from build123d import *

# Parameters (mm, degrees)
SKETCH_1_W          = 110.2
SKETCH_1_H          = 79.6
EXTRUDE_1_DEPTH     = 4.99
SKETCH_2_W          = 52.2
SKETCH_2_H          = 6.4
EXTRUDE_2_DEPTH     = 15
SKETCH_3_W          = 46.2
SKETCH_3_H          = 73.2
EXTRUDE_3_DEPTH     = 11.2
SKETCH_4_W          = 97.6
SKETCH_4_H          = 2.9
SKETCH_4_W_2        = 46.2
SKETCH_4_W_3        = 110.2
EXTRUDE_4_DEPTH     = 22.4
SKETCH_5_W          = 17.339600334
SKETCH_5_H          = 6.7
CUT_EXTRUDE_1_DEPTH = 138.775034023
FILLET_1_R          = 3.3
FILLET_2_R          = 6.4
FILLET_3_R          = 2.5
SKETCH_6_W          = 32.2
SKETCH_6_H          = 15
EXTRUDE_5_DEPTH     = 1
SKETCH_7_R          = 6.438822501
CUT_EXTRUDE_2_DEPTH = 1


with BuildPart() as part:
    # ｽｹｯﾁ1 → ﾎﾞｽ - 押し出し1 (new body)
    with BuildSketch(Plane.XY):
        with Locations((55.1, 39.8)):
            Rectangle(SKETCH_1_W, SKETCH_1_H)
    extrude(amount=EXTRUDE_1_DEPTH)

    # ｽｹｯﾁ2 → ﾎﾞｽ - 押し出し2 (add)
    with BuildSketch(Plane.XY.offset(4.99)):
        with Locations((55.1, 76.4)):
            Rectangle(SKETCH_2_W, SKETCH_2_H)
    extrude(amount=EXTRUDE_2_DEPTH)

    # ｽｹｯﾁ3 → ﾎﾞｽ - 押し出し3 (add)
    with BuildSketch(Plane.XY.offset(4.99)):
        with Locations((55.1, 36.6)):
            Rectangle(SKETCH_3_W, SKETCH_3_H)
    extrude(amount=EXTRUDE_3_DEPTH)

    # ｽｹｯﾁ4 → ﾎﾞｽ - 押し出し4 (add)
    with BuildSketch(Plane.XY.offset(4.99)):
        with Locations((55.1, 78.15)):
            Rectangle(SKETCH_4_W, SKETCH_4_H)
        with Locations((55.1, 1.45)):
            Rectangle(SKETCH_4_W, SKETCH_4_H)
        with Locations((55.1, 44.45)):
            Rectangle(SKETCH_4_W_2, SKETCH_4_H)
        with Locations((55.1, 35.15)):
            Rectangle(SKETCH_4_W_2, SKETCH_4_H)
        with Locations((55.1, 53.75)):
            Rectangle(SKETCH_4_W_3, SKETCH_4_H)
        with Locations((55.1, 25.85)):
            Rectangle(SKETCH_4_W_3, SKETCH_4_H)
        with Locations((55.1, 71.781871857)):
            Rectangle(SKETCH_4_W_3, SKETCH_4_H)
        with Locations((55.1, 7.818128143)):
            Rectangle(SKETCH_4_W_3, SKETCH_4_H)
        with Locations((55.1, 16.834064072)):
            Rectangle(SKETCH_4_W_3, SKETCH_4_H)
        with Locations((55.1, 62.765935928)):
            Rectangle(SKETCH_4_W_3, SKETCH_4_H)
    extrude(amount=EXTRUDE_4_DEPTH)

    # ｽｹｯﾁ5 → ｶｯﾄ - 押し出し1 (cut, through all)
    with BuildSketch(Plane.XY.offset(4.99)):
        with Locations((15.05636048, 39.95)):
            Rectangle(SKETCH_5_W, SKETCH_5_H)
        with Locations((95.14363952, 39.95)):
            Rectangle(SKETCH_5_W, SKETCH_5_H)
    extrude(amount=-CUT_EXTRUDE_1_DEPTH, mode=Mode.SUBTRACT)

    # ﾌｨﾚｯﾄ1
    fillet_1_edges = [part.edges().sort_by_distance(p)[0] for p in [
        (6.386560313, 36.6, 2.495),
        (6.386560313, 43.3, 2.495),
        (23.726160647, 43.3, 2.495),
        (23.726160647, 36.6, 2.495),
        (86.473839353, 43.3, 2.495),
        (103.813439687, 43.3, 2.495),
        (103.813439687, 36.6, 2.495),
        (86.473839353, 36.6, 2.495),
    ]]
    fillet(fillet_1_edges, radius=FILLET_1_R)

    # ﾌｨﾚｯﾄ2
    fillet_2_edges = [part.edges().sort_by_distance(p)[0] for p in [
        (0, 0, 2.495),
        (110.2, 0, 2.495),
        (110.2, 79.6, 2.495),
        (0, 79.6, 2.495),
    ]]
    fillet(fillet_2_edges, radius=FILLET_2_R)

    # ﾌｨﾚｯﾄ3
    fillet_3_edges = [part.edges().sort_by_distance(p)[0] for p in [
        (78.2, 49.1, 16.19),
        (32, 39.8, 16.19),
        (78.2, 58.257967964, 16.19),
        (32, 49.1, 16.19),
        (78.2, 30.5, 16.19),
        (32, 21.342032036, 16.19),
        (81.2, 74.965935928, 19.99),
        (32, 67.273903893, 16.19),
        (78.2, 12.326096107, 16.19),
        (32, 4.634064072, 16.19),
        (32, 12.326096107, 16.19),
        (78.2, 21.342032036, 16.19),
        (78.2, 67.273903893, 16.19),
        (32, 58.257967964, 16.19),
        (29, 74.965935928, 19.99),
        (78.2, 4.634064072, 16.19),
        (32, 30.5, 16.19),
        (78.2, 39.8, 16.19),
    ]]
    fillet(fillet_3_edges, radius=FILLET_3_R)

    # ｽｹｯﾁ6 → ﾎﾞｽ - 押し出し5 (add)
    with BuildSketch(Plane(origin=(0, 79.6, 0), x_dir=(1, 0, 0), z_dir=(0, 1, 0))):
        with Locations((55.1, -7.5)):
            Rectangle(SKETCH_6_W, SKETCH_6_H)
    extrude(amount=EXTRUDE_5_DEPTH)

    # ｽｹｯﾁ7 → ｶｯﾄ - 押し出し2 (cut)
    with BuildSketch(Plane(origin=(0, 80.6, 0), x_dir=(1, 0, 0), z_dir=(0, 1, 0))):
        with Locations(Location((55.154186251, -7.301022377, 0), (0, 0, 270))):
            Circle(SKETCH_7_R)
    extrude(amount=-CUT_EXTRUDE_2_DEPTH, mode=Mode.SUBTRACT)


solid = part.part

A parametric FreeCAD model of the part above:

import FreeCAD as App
import Part
import Sketcher

V = App.Vector


def edges_at(feature, points):
    """Names of the edges that pass closest to the given points."""
    edges = feature.Shape.Edges
    near = lambda p: min(range(len(edges)), key=lambda i: edges[i].distToShape(Part.Vertex(*p))[0])
    return sorted({f"Edge{near(p) + 1}" for p in points})


def add_polygon(sketch, points):
    """Adds a closed chain of lines whose ends are joined by coincident constraints."""
    first, n = sketch.GeometryCount, len(points)
    for a, b in zip(points, points[1:] + points[:1]):
        sketch.addGeometry(Part.LineSegment(App.Vector(*a, 0), App.Vector(*b, 0)), False)
    for i in range(n):
        sketch.addConstraint(Sketcher.Constraint("Coincident", first + i, 2, first + (i + 1) % n, 1))

doc = App.newDocument("Part")
params = doc.addObject("Spreadsheet::Sheet", "Params")
for row, (alias, value) in enumerate([
    ("sketch1_width", "110.2 mm"),
    ("sketch1_height", "79.6 mm"),
    ("pad1_length", "4.99 mm"),
    ("sketch2_width", "52.2 mm"),
    ("sketch2_height", "6.4 mm"),
    ("pad2_length", "15 mm"),
    ("sketch3_width", "46.2 mm"),
    ("sketch3_height", "73.2 mm"),
    ("pad3_length", "11.2 mm"),
    ("sketch4_width", "97.6 mm"),
    ("sketch4_width2", "46.2 mm"),
    ("sketch4_width3", "110.2 mm"),
    ("sketch4_height", "2.9 mm"),
    ("pad4_length", "22.4 mm"),
    ("sketch5_height", "6.7 mm"),
    ("fillet_radius", "3.3 mm"),
    ("fillet2_radius", "6.4 mm"),
    ("fillet3_radius", "2.5 mm"),
    ("sketch6_height", "15 mm"),
    ("sketch6_width", "32.2 mm"),
    ("pad5_length", "1 mm"),
    ("pocket2_length", "1 mm"),
], start=1):
    params.set(f"A{row}", alias)
    params.set(f"B{row}", "=" + value)
    params.setAlias(f"B{row}", alias)

body = doc.addObject("PartDesign::Body", "Body")

sketch1 = body.newObject("Sketcher::SketchObject", "Sketch")
sketch1.AttachmentSupport = (doc.getObject("XY_Plane"), [""])
sketch1.MapMode = "FlatFace"
add_polygon(sketch1, [(0, 79.6), (0, 0), (110.2, 0), (110.2, 79.6)])
sketch1.addConstraint([
    Sketcher.Constraint("Vertical", 0),
    Sketcher.Constraint("Horizontal", 1),
    Sketcher.Constraint("Vertical", 2),
    Sketcher.Constraint("Horizontal", 3),
    Sketcher.Constraint("Coincident", 0, 2, -1, 1),
    Sketcher.Constraint("DistanceX", 1, 1, 1, 2, 110.2),
    Sketcher.Constraint("DistanceY", 0, 2, 0, 1, 79.6),
])
sketch1.setExpression("Constraints[9]", "Params.sketch1_width")
sketch1.setExpression("Constraints[10]", "Params.sketch1_height")
pad1 = body.newObject("PartDesign::Pad", "Pad")
pad1.Profile = sketch1
pad1.setExpression("Length", "Params.pad1_length")

sketch2 = body.newObject("Sketcher::SketchObject", "Sketch001")
sketch2.AttachmentSupport = (doc.getObject("XY_Plane"), [""])
sketch2.MapMode = "FlatFace"
sketch2.AttachmentOffset = App.Placement(V(0, 0, 4.99), App.Rotation())
add_polygon(sketch2, [(29, 79.6), (29, 73.2), (81.2, 73.2), (81.2, 79.6)])
sketch2.addConstraint([
    Sketcher.Constraint("Vertical", 0),
    Sketcher.Constraint("Horizontal", 1),
    Sketcher.Constraint("Vertical", 2),
    Sketcher.Constraint("Horizontal", 3),
    Sketcher.Constraint("DistanceX", 1, 1, 1, 2, 52.2),
    Sketcher.Constraint("DistanceY", 0, 2, 0, 1, 6.4),
    Sketcher.Constraint("DistanceX", -1, 1, 0, 2, 29.0),
    Sketcher.Constraint("DistanceY", -1, 1, 0, 2, 73.2),
])
sketch2.setExpression("Constraints[8]", "Params.sketch2_width")
sketch2.setExpression("Constraints[9]", "Params.sketch2_height")
pad2 = body.newObject("PartDesign::Pad", "Pad001")
pad2.Profile = sketch2
pad2.setExpression("Length", "Params.pad2_length")

sketch3 = body.newObject("Sketcher::SketchObject", "Sketch002")
sketch3.AttachmentSupport = (doc.getObject("XY_Plane"), [""])
sketch3.MapMode = "FlatFace"
sketch3.AttachmentOffset = App.Placement(V(0, 0, 4.99), App.Rotation())
add_polygon(sketch3, [(32, 73.2), (32, 0), (78.2, 0), (78.2, 73.2)])
sketch3.addConstraint([
    Sketcher.Constraint("Vertical", 0),
    Sketcher.Constraint("Horizontal", 1),
    Sketcher.Constraint("Vertical", 2),
    Sketcher.Constraint("Horizontal", 3),
    Sketcher.Constraint("PointOnObject", 0, 2, -1),
    Sketcher.Constraint("DistanceX", 1, 1, 1, 2, 46.2),
    Sketcher.Constraint("DistanceY", 0, 2, 0, 1, 73.2),
    Sketcher.Constraint("DistanceX", -1, 1, 0, 2, 32.0),
])
sketch3.setExpression("Constraints[9]", "Params.sketch3_width")
sketch3.setExpression("Constraints[10]", "Params.sketch3_height")
pad3 = body.newObject("PartDesign::Pad", "Pad002")
pad3.Profile = sketch3
pad3.setExpression("Length", "Params.pad3_length")

sketch4 = body.newObject("Sketcher::SketchObject", "Sketch003")
sketch4.AttachmentSupport = (doc.getObject("XY_Plane"), [""])
sketch4.MapMode = "FlatFace"
sketch4.AttachmentOffset = App.Placement(V(0, 0, 4.99), App.Rotation())
add_polygon(sketch4, [(6.3, 79.6), (6.3, 76.7), (103.9, 76.7), (103.9, 79.6)])
add_polygon(sketch4, [(6.3, 2.9), (6.3, 0), (103.9, 0), (103.9, 2.9)])
add_polygon(sketch4, [(32, 45.9), (32, 43), (78.2, 43), (78.2, 45.9)])
add_polygon(sketch4, [(32, 36.6), (32, 33.7), (78.2, 33.7), (78.2, 36.6)])
add_polygon(sketch4, [(0, 55.2), (0, 52.3), (110.2, 52.3), (110.2, 55.2)])
add_polygon(sketch4, [(0, 27.3), (0, 24.4), (110.2, 24.4), (110.2, 27.3)])
add_polygon(sketch4, [(0, 73.231872), (0, 70.331872), (110.2, 70.331872), (110.2, 73.231872)])
add_polygon(sketch4, [(0, 9.268128), (0, 6.368128), (110.2, 6.368128), (110.2, 9.268128)])
add_polygon(sketch4, [(0, 18.284064), (0, 15.384064), (110.2, 15.384064), (110.2, 18.284064)])
add_polygon(sketch4, [(0, 64.215936), (0, 61.315936), (110.2, 61.315936), (110.2, 64.215936)])
sketch4.addConstraint([
    Sketcher.Constraint("Vertical", 0),
    Sketcher.Constraint("Horizontal", 1),
    Sketcher.Constraint("Vertical", 2),
    Sketcher.Constraint("Horizontal", 3),
    Sketcher.Constraint("Vertical", 4),
    Sketcher.Constraint("Horizontal", 5),
    Sketcher.Constraint("Vertical", 6),
    Sketcher.Constraint("Horizontal", 7),
    Sketcher.Constraint("Vertical", 8),
    Sketcher.Constraint("Horizontal", 9),
    Sketcher.Constraint("Vertical", 10),
    Sketcher.Constraint("Horizontal", 11),
    Sketcher.Constraint("Vertical", 12),
    Sketcher.Constraint("Horizontal", 13),
    Sketcher.Constraint("Vertical", 14),
    Sketcher.Constraint("Horizontal", 15),
    Sketcher.Constraint("Vertical", 16),
    Sketcher.Constraint("Horizontal", 17),
    Sketcher.Constraint("Vertical", 18),
    Sketcher.Constraint("Horizontal", 19),
    Sketcher.Constraint("Vertical", 20),
    Sketcher.Constraint("Horizontal", 21),
    Sketcher.Constraint("Vertical", 22),
    Sketcher.Constraint("Horizontal", 23),
    Sketcher.Constraint("Vertical", 24),
    Sketcher.Constraint("Horizontal", 25),
    Sketcher.Constraint("Vertical", 26),
    Sketcher.Constraint("Horizontal", 27),
    Sketcher.Constraint("Vertical", 28),
    Sketcher.Constraint("Horizontal", 29),
    Sketcher.Constraint("Vertical", 30),
    Sketcher.Constraint("Horizontal", 31),
    Sketcher.Constraint("Vertical", 32),
    Sketcher.Constraint("Horizontal", 33),
    Sketcher.Constraint("Vertical", 34),
    Sketcher.Constraint("Horizontal", 35),
    Sketcher.Constraint("Vertical", 36),
    Sketcher.Constraint("Horizontal", 37),
    Sketcher.Constraint("Vertical", 38),
    Sketcher.Constraint("Horizontal", 39),
    Sketcher.Constraint("PointOnObject", 4, 2, -1),
    Sketcher.Constraint("PointOnObject", 16, 2, -2),
    Sketcher.Constraint("PointOnObject", 20, 2, -2),
    Sketcher.Constraint("PointOnObject", 24, 2, -2),
    Sketcher.Constraint("PointOnObject", 28, 2, -2),
    Sketcher.Constraint("PointOnObject", 32, 2, -2),
    Sketcher.Constraint("PointOnObject", 36, 2, -2),
    Sketcher.Constraint("Vertical", 3, 2, 4, 2),
    Sketcher.Constraint("Vertical", 2, 2, 5, 2),
    Sketcher.Constraint("Vertical", 11, 2, 12, 2),
    Sketcher.Constraint("Vertical", 10, 2, 13, 2),
    Sketcher.Constraint("Vertical", 18, 2, 21, 2),
    Sketcher.Constraint("Vertical", 22, 2, 25, 2),
    Sketcher.Constraint("Vertical", 26, 2, 29, 2),
    Sketcher.Constraint("Vertical", 30, 2, 33, 2),
    Sketcher.Constraint("Vertical", 34, 2, 37, 2),
    Sketcher.Constraint("Equal", 2, 4),
    Sketcher.Constraint("Equal", 6, 8),
    Sketcher.Constraint("Equal", 10, 12),
    Sketcher.Constraint("Equal", 14, 16),
    Sketcher.Constraint("Equal", 18, 20),
    Sketcher.Constraint("Equal", 22, 24),
    Sketcher.Constraint("Equal", 26, 28),
    Sketcher.Constraint("Equal", 30, 32),
    Sketcher.Constraint("Equal", 34, 36),
    Sketcher.Constraint("DistanceX", 1, 1, 1, 2, 97.6),
    Sketcher.Constraint("DistanceX", 9, 1, 9, 2, 46.2),
    Sketcher.Constraint("DistanceX", 17, 1, 17, 2, 110.2),
    Sketcher.Constraint("DistanceY", 0, 2, 0, 1, 2.9),
    Sketcher.Constraint("DistanceX", -1, 1, 8, 2, 32.0),
    Sketcher.Constraint("DistanceY", -1, 1, 8, 2, 43.0),
    Sketcher.Constraint("DistanceY", 22, 2, 17, 2, 25.0),
    Sketcher.Constraint("DistanceX", -1, 1, 0, 2, 6.3),
    Sketcher.Constraint("DistanceY", -1, 1, 0, 2, 76.7),
    Sketcher.Constraint("DistanceY", -1, 1, 12, 2, 33.7),
    Sketcher.Constraint("DistanceY", -1, 1, 16, 2, 52.3),
    Sketcher.Constraint("DistanceY", -1, 1, 24, 2, 70.331872),
    Sketcher.Constraint("DistanceY", -1, 1, 28, 2, 6.368128),
    Sketcher.Constraint("DistanceY", -1, 1, 32, 2, 15.384064),
    Sketcher.Constraint("DistanceY", -1, 1, 36, 2, 61.315936),
])
sketch4.setExpression("Constraints[105]", "Params.sketch4_width")
sketch4.setExpression("Constraints[106]", "Params.sketch4_width2")
sketch4.setExpression("Constraints[107]", "Params.sketch4_width3")
sketch4.setExpression("Constraints[108]", "Params.sketch4_height")
pad4 = body.newObject("PartDesign::Pad", "Pad003")
pad4.Profile = sketch4
pad4.setExpression("Length", "Params.pad4_length")

sketch5 = body.newObject("Sketcher::SketchObject", "Sketch004")
sketch5.AttachmentSupport = (doc.getObject("XY_Plane"), [""])
sketch5.MapMode = "FlatFace"
sketch5.AttachmentOffset = App.Placement(V(0, 0, 4.99), App.Rotation())
add_polygon(sketch5, [(6.38656, 43.3), (6.38656, 36.6), (23.726161, 36.6), (23.726161, 43.3)])
add_polygon(sketch5, [(86.473839, 43.3), (86.473839, 36.6), (103.81344, 36.6), (103.81344, 43.3)])
sketch5.addConstraint([
    Sketcher.Constraint("Vertical", 0),
    Sketcher.Constraint("Horizontal", 1),
    Sketcher.Constraint("Vertical", 2),
    Sketcher.Constraint("Horizontal", 3),
    Sketcher.Constraint("Vertical", 4),
    Sketcher.Constraint("Horizontal", 5),
    Sketcher.Constraint("Vertical", 6),
    Sketcher.Constraint("Horizontal", 7),
    Sketcher.Constraint("Horizontal", 1, 2, 4, 2),
    Sketcher.Constraint("Horizontal", 3, 2, 6, 2),
    Sketcher.Constraint("Equal", 3, 5),
    Sketcher.Constraint("DistanceY", 0, 2, 0, 1, 6.7),
    Sketcher.Constraint("DistanceY", -1, 1, 0, 2, 36.6),
    Sketcher.Constraint("DistanceX", 1, 1, 1, 2, 17.3396),
    Sketcher.Constraint("DistanceX", -1, 1, 0, 2, 6.38656),
    Sketcher.Constraint("DistanceX", -1, 1, 4, 2, 86.473839),
])
sketch5.setExpression("Constraints[19]", "Params.sketch5_height")
pocket1 = body.newObject("PartDesign::Pocket", "Pocket")
pocket1.Profile = sketch5
pocket1.Type = "ThroughAll"
doc.recompute()

fillet = body.newObject("PartDesign::Fillet", "Fillet")
fillet.Base = (pocket1, edges_at(pocket1, [
    (6.387, 36.6, 2.495),
    (6.387, 43.3, 2.495),
    (23.726, 43.3, 2.495),
    (23.726, 36.6, 2.495),
    (86.474, 43.3, 2.495),
    (103.813, 43.3, 2.495),
    (103.813, 36.6, 2.495),
    (86.474, 36.6, 2.495),
]))
fillet.setExpression("Radius", "Params.fillet_radius")
doc.recompute()

fillet2 = body.newObject("PartDesign::Fillet", "Fillet001")
fillet2.Base = (fillet, edges_at(fillet, [
    (0, 0, 2.495),
    (110.2, 0, 2.495),
    (110.2, 79.6, 2.495),
    (0, 79.6, 2.495),
]))
fillet2.setExpression("Radius", "Params.fillet2_radius")
doc.recompute()

fillet3 = body.newObject("PartDesign::Fillet", "Fillet002")
fillet3.Base = (fillet2, edges_at(fillet2, [
    (78.2, 49.1, 16.19),
    (32, 39.8, 16.19),
    (78.2, 58.258, 16.19),
    (32, 49.1, 16.19),
    (78.2, 30.5, 16.19),
    (32, 21.342, 16.19),
    (81.2, 74.966, 19.99),
    (32, 67.274, 16.19),
    (78.2, 12.326, 16.19),
    (32, 4.634, 16.19),
    (32, 12.326, 16.19),
    (78.2, 21.342, 16.19),
    (78.2, 67.274, 16.19),
    (32, 58.258, 16.19),
    (29, 74.966, 19.99),
    (78.2, 4.634, 16.19),
    (32, 30.5, 16.19),
    (78.2, 39.8, 16.19),
]))
fillet3.setExpression("Radius", "Params.fillet3_radius")

sketch6 = body.newObject("Sketcher::SketchObject", "Sketch005")
sketch6.AttachmentSupport = (doc.getObject("XZ_Plane"), [""])
sketch6.MapMode = "FlatFace"
sketch6.AttachmentOffset = App.Placement(V(0, 0, -79.6), App.Rotation())
add_polygon(sketch6, [(39, 0), (39, 15), (71.2, 15), (71.2, 0)])
sketch6.addConstraint([
    Sketcher.Constraint("Vertical", 0),
    Sketcher.Constraint("Horizontal", 1),
    Sketcher.Constraint("Vertical", 2),
    Sketcher.Constraint("Horizontal", 3),
    Sketcher.Constraint("PointOnObject", 2, 2, -1),
    Sketcher.Constraint("DistanceY", 0, 1, 0, 2, 15.0),
    Sketcher.Constraint("DistanceX", 1, 1, 1, 2, 32.2),
    Sketcher.Constraint("DistanceX", -1, 1, 0, 2, 39.0),
])
sketch6.setExpression("Constraints[9]", "Params.sketch6_height")
sketch6.setExpression("Constraints[10]", "Params.sketch6_width")
pad5 = body.newObject("PartDesign::Pad", "Pad004")
pad5.Profile = sketch6
pad5.setExpression("Length", "Params.pad5_length")
pad5.Reversed = True

sketch7 = body.newObject("Sketcher::SketchObject", "Sketch006")
sketch7.AttachmentSupport = (doc.getObject("XZ_Plane"), [""])
sketch7.MapMode = "FlatFace"
sketch7.AttachmentOffset = App.Placement(V(0, 0, -80.6), App.Rotation())
sketch7.addGeometry(Part.Circle(V(55.154186, 7.301022, 0), V(0, 0, 1), 6.438823), False)
sketch7.addConstraint([
    Sketcher.Constraint("Diameter", 0, 12.877645),
    Sketcher.Constraint("DistanceX", -1, 1, 0, 3, 55.154186),
    Sketcher.Constraint("DistanceY", -1, 1, 0, 3, 7.301022),
])
pocket2 = body.newObject("PartDesign::Pocket", "Pocket001")
pocket2.Profile = sketch7
pocket2.setExpression("Length", "Params.pocket2_length")
pocket2.Reversed = True

doc.recompute()
